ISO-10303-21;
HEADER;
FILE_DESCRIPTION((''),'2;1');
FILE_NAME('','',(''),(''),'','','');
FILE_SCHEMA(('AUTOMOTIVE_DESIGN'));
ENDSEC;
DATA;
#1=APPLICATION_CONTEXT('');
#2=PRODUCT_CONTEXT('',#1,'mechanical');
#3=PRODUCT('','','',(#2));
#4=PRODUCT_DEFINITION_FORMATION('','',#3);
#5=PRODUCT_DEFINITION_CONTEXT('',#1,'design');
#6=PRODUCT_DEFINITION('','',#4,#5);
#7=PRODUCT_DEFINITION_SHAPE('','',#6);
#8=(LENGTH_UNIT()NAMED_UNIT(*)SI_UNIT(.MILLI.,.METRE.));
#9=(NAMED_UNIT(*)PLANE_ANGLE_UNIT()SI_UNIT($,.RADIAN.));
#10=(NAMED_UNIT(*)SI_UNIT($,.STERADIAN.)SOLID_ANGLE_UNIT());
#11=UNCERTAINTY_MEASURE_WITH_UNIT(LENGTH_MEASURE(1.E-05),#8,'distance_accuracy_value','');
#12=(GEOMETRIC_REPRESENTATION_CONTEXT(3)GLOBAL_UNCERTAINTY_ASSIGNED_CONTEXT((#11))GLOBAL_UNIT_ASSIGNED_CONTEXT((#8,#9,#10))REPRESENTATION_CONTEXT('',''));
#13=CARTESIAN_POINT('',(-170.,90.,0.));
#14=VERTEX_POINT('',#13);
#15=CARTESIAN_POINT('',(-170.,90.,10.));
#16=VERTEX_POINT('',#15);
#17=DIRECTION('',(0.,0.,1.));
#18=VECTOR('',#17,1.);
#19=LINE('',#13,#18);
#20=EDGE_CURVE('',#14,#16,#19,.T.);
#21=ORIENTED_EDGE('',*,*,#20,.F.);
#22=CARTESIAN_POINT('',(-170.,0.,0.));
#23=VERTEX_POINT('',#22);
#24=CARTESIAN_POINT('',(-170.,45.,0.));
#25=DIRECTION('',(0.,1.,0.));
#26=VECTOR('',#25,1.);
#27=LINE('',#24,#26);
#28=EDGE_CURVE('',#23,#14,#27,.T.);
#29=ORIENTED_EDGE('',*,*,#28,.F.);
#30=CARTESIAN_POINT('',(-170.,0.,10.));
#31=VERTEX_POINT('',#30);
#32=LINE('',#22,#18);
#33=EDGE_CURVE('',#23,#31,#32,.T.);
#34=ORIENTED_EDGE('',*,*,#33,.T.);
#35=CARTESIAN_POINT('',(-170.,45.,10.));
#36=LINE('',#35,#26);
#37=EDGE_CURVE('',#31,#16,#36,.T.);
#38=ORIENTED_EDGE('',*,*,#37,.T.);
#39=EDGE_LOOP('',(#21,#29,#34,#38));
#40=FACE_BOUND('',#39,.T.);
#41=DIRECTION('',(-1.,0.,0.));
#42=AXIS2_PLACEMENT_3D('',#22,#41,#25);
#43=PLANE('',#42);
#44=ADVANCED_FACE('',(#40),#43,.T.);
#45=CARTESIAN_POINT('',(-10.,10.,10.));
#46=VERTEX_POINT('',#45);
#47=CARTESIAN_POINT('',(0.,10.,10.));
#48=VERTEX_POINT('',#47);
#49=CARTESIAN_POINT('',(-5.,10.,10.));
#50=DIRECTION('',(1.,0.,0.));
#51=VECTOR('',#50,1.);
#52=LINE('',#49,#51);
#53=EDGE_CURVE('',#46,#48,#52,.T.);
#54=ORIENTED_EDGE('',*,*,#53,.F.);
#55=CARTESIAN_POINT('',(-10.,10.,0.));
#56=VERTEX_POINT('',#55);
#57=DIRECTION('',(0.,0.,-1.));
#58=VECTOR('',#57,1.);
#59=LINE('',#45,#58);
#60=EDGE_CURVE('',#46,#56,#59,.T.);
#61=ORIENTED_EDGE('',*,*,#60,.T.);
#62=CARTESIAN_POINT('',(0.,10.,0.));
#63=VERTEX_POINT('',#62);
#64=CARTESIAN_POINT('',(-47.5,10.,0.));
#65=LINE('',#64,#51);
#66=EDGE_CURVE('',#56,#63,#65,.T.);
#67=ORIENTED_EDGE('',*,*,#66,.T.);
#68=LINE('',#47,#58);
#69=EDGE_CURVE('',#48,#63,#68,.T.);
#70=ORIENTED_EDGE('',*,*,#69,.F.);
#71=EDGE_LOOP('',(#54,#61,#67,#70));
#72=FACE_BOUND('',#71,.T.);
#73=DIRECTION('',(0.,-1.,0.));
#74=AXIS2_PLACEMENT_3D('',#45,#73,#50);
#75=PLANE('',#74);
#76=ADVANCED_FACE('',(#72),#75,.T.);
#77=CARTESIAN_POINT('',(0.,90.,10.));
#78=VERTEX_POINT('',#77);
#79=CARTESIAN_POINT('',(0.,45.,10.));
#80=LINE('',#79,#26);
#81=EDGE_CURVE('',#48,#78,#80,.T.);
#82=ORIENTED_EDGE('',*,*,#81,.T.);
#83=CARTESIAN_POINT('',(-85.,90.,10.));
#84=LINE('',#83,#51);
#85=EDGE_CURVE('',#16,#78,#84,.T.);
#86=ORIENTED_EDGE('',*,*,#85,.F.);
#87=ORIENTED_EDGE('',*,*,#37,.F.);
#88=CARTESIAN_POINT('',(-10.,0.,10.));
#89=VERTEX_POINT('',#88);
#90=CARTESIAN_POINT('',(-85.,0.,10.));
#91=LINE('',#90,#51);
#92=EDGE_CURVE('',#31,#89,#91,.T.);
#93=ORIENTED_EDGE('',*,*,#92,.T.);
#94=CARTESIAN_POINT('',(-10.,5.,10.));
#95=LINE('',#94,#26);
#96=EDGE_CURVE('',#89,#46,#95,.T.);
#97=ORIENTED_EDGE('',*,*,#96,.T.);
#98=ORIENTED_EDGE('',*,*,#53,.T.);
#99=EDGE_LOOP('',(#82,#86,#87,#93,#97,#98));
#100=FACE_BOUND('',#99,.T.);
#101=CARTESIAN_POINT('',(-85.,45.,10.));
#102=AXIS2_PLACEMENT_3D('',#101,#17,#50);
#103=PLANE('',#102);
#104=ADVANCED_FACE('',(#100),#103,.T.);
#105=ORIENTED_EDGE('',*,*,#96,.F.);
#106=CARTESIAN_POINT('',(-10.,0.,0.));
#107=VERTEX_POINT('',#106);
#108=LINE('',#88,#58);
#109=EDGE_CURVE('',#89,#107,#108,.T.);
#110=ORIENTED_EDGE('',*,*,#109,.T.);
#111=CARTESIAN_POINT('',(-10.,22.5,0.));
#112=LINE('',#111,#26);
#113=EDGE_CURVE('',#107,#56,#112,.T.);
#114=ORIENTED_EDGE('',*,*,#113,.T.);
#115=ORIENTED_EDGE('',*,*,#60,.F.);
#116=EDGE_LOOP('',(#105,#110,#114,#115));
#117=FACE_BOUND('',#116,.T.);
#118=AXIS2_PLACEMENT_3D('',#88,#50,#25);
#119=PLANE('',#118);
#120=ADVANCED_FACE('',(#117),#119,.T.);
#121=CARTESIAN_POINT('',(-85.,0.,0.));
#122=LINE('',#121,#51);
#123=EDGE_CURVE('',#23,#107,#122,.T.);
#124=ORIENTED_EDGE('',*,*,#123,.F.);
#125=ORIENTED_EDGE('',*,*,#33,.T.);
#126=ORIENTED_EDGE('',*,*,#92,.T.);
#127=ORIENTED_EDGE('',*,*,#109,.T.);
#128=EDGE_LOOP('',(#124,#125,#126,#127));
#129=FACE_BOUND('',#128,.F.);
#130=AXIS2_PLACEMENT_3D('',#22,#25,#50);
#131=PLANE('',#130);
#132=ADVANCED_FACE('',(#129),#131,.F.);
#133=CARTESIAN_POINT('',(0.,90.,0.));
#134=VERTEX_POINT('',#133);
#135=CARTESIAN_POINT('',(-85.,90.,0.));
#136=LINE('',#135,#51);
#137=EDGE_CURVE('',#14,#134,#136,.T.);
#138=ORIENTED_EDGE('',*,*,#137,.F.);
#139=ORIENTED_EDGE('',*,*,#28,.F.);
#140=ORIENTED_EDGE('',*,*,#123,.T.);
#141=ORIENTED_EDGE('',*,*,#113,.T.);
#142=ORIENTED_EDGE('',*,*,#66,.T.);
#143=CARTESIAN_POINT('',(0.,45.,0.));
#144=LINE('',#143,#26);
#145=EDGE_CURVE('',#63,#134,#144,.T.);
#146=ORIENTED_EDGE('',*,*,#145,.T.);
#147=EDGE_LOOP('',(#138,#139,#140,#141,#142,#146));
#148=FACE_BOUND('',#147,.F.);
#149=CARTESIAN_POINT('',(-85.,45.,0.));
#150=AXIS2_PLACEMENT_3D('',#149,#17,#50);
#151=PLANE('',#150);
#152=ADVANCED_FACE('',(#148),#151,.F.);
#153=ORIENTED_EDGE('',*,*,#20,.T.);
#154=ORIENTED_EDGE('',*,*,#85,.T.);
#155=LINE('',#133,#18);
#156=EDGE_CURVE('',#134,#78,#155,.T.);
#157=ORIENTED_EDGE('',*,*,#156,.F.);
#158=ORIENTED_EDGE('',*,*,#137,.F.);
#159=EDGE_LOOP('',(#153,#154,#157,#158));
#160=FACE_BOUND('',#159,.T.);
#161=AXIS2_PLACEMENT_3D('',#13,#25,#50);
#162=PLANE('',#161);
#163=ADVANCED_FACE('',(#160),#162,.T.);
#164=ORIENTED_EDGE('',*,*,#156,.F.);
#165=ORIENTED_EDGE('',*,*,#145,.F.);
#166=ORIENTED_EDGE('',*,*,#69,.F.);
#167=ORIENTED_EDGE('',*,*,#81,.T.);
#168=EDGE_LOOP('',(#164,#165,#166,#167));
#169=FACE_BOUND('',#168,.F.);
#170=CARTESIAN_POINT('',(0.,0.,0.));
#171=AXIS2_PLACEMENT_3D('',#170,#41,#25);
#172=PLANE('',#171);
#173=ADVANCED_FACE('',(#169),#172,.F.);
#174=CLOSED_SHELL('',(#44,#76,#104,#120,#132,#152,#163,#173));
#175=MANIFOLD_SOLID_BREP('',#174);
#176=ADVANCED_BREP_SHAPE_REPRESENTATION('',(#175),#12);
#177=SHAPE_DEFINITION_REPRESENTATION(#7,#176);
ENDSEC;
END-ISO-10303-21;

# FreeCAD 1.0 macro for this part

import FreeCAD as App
import Part
import Sketcher
Q = App.Units.Quantity


def add_polygon(sketch, points):
    """Adds a closed chain of lines whose ends are joined by coincident constraints."""
    first, n = sketch.GeometryCount, len(points)
    for a, b in zip(points, points[1:] + points[:1]):
        sketch.addGeometry(Part.LineSegment(App.Vector(*a, 0), App.Vector(*b, 0)), False)
    for i in range(n):
        sketch.addConstraint(Sketcher.Constraint("Coincident", first + i, 2, first + (i + 1) % n, 1))

doc = App.newDocument("Part")
params = doc.addObject("Spreadsheet::Sheet", "Params")
for row, (alias, value) in enumerate([
    ("sketch1_width", "170 mm"),
    ("sketch1_height", "90 mm"),
    ("pad1_length", "10 mm"),
    ("sketch2_width", "10 mm"),
], start=1):
    params.set(f"A{row}", alias)
    params.set(f"B{row}", "=" + value)
    params.setAlias(f"B{row}", alias)

body = doc.addObject("PartDesign::Body", "Body")

# Sketch on XY plane
sketch1 = body.newObject("Sketcher::SketchObject", "Sketch")
sketch1.AttachmentSupport = (doc.getObject("XY_Plane"), [""])
sketch1.MapMode = "FlatFace"
add_polygon(sketch1, [(-170, 90), (-170, 0), (0, 0), (0, 90)])  # lines 0-3
sketch1.addConstraint(Sketcher.Constraint("Vertical", 0))
sketch1.addConstraint(Sketcher.Constraint("Horizontal", 1))
sketch1.addConstraint(Sketcher.Constraint("Vertical", 2))
sketch1.addConstraint(Sketcher.Constraint("Horizontal", 3))
sketch1.addConstraint(Sketcher.Constraint("Coincident", 1, 2, -1, 1))
sketch1.addConstraint(Sketcher.Constraint("DistanceX", 1, 1, 1, 2, Q("170 mm")))
sketch1.addConstraint(Sketcher.Constraint("DistanceY", 0, 2, 0, 1, Q("90 mm")))
sketch1.setExpression("Constraints[9]", "Params.sketch1_width")
sketch1.setExpression("Constraints[10]", "Params.sketch1_height")
pad1 = body.newObject("PartDesign::Pad", "Pad")
pad1.Profile = sketch1
pad1.setExpression("Length", "Params.pad1_length")

# Sketch on XY plane
sketch2 = body.newObject("Sketcher::SketchObject", "Sketch001")
sketch2.AttachmentSupport = (doc.getObject("XY_Plane"), [""])
sketch2.MapMode = "FlatFace"
sketch2.AttachmentOffset = App.Placement(App.Vector(0, 0, 10), App.Rotation())
add_polygon(sketch2, [(-10, 10), (-10, 0), (0, 0), (0, 10)])  # lines 0-3
sketch2.addConstraint(Sketcher.Constraint("Vertical", 0))
sketch2.addConstraint(Sketcher.Constraint("Horizontal", 1))
sketch2.addConstraint(Sketcher.Constraint("Vertical", 2))
sketch2.addConstraint(Sketcher.Constraint("Horizontal", 3))
sketch2.addConstraint(Sketcher.Constraint("Coincident", 1, 2, -1, 1))
sketch2.addConstraint(Sketcher.Constraint("Equal", 3, 0))
sketch2.addConstraint(Sketcher.Constraint("DistanceX", 1, 1, 1, 2, Q("10 mm")))
sketch2.setExpression("Constraints[10]", "Params.sketch2_width")
pocket1 = body.newObject("PartDesign::Pocket", "Pocket")
pocket1.Profile = sketch2
pocket1.Type = "ThroughAll"

doc.recompute()
